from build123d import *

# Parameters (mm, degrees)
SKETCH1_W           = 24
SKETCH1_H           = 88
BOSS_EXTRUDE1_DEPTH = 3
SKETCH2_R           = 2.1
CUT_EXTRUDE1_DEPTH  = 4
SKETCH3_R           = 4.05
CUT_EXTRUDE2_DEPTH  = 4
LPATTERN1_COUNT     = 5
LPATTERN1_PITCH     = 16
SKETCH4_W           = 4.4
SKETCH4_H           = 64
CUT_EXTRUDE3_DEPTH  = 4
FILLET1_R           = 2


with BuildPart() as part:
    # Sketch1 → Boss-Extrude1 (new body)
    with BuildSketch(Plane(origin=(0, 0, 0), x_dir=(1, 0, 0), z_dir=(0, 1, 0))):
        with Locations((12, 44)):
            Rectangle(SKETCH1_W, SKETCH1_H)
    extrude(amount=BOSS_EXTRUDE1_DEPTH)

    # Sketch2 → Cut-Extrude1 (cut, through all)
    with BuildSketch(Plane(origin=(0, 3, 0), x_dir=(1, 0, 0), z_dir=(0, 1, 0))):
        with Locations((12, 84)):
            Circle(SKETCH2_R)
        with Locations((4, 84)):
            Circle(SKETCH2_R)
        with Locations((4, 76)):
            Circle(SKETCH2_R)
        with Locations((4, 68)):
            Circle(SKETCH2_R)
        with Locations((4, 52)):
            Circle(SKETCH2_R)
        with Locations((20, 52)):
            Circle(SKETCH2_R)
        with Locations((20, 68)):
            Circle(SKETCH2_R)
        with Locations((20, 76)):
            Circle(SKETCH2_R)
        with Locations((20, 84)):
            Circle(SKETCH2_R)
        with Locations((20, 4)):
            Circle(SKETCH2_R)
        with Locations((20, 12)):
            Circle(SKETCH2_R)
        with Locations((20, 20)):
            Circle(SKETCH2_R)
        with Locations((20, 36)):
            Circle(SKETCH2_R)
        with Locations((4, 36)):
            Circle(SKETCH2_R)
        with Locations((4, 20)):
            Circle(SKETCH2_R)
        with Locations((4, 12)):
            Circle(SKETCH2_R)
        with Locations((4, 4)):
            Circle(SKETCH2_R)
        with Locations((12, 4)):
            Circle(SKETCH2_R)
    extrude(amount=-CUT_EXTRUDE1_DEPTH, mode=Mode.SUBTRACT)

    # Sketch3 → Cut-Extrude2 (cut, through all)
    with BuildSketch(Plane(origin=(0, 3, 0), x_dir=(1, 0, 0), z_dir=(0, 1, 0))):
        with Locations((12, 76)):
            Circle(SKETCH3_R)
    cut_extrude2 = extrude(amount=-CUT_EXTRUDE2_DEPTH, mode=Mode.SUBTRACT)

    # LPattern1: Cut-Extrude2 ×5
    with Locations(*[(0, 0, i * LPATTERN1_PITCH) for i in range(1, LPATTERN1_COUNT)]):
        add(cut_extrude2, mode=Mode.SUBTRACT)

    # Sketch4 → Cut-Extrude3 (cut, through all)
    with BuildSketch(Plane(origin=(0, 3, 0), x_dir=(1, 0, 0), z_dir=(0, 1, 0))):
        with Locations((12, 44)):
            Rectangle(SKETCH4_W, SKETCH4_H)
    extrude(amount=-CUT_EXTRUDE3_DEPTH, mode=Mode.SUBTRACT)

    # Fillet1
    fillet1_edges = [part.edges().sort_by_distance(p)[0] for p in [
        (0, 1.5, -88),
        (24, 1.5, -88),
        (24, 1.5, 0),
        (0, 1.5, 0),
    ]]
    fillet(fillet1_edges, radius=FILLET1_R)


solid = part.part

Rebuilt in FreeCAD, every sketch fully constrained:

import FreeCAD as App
import Part
import Sketcher
from FreeCAD import Vector
Q = App.Units.Quantity


def edges_at(feature, points):
    """Names of the edges that pass closest to the given points."""
    edges = feature.Shape.Edges
    near = lambda p: min(range(len(edges)), key=lambda i: edges[i].distToShape(Part.Vertex(*p))[0])
    return sorted({f"Edge{near(p) + 1}" for p in points})

doc = App.newDocument("Part")
body = doc.addObject("PartDesign::Body", "Body")

sketch1 = body.newObject("Sketcher::SketchObject", "Sketch")
sketch1.AttachmentSupport = (doc.getObject("XZ_Plane"), [""])
sketch1.MapMode = "FlatFace"
sketch1.addGeometry(Part.LineSegment(Vector(0, -88, 0), Vector(0, 0, 0)), False)
sketch1.addGeometry(Part.LineSegment(Vector(0, 0, 0), Vector(24, 0, 0)), False)
sketch1.addGeometry(Part.LineSegment(Vector(24, 0, 0), Vector(24, -88, 0)), False)
sketch1.addGeometry(Part.LineSegment(Vector(24, -88, 0), Vector(0, -88, 0)), False)
sketch1.addConstraint(Sketcher.Constraint("Coincident", 0, 2, 1, 1))
sketch1.addConstraint(Sketcher.Constraint("Coincident", 1, 2, 2, 1))
sketch1.addConstraint(Sketcher.Constraint("Coincident", 2, 2, 3, 1))
sketch1.addConstraint(Sketcher.Constraint("Coincident", 3, 2, 0, 1))
sketch1.addConstraint(Sketcher.Constraint("Vertical", 0))
sketch1.addConstraint(Sketcher.Constraint("Horizontal", 1))
sketch1.addConstraint(Sketcher.Constraint("Vertical", 2))
sketch1.addConstraint(Sketcher.Constraint("Horizontal", 3))
sketch1.addConstraint(Sketcher.Constraint("Coincident", 0, 2, -1, 1))
sketch1.addConstraint(Sketcher.Constraint("DistanceX", 1, 1, 1, 2, Q("24 mm")))
sketch1.addConstraint(Sketcher.Constraint("DistanceY", 0, 1, 0, 2, Q("88 mm")))
pad1 = body.newObject("PartDesign::Pad", "Pad")
pad1.Profile = sketch1
pad1.Length = 3
pad1.Reversed = True

sketch2 = body.newObject("Sketcher::SketchObject", "Sketch001")
sketch2.AttachmentSupport = (doc.getObject("XZ_Plane"), [""])
sketch2.MapMode = "FlatFace"
sketch2.AttachmentOffset = App.Placement(Vector(0, 0, -3), App.Rotation())
sketch2.addGeometry(Part.Circle(Vector(12, -84, 0), Vector(0, 0, 1), 2.1), False)
sketch2.addGeometry(Part.Circle(Vector(4, -84, 0), Vector(0, 0, 1), 2.1), False)
sketch2.addGeometry(Part.Circle(Vector(4, -76, 0), Vector(0, 0, 1), 2.1), False)
sketch2.addGeometry(Part.Circle(Vector(4, -68, 0), Vector(0, 0, 1), 2.1), False)
sketch2.addGeometry(Part.Circle(Vector(4, -52, 0), Vector(0, 0, 1), 2.1), False)
sketch2.addGeometry(Part.Circle(Vector(20, -52, 0), Vector(0, 0, 1), 2.1), False)
sketch2.addGeometry(Part.Circle(Vector(20, -68, 0), Vector(0, 0, 1), 2.1), False)
sketch2.addGeometry(Part.Circle(Vector(20, -76, 0), Vector(0, 0, 1), 2.1), False)
sketch2.addGeometry(Part.Circle(Vector(20, -84, 0), Vector(0, 0, 1), 2.1), False)
sketch2.addGeometry(Part.Circle(Vector(20, -4, 0), Vector(0, 0, 1), 2.1), False)
sketch2.addGeometry(Part.Circle(Vector(20, -12, 0), Vector(0, 0, 1), 2.1), False)
sketch2.addGeometry(Part.Circle(Vector(20, -20, 0), Vector(0, 0, 1), 2.1), False)
sketch2.addGeometry(Part.Circle(Vector(20, -36, 0), Vector(0, 0, 1), 2.1), False)
sketch2.addGeometry(Part.Circle(Vector(4, -36, 0), Vector(0, 0, 1), 2.1), False)
sketch2.addGeometry(Part.Circle(Vector(4, -20, 0), Vector(0, 0, 1), 2.1), False)
sketch2.addGeometry(Part.Circle(Vector(4, -12, 0), Vector(0, 0, 1), 2.1), False)
sketch2.addGeometry(Part.Circle(Vector(4, -4, 0), Vector(0, 0, 1), 2.1), False)
sketch2.addGeometry(Part.Circle(Vector(12, -4, 0), Vector(0, 0, 1), 2.1), False)
sketch2.addConstraint(Sketcher.Constraint("Equal", 0, 1))
sketch2.addConstraint(Sketcher.Constraint("Equal", 1, 2))
sketch2.addConstraint(Sketcher.Constraint("Equal", 2, 3))
sketch2.addConstraint(Sketcher.Constraint("Equal", 3, 4))
sketch2.addConstraint(Sketcher.Constraint("Equal", 4, 5))
sketch2.addConstraint(Sketcher.Constraint("Equal", 5, 6))
sketch2.addConstraint(Sketcher.Constraint("Equal", 6, 7))
sketch2.addConstraint(Sketcher.Constraint("Equal", 7, 8))
sketch2.addConstraint(Sketcher.Constraint("Equal", 8, 9))
sketch2.addConstraint(Sketcher.Constraint("Equal", 9, 10))
sketch2.addConstraint(Sketcher.Constraint("Equal", 10, 11))
sketch2.addConstraint(Sketcher.Constraint("Equal", 11, 12))
sketch2.addConstraint(Sketcher.Constraint("Equal", 12, 13))
sketch2.addConstraint(Sketcher.Constraint("Equal", 13, 14))
sketch2.addConstraint(Sketcher.Constraint("Equal", 14, 15))
sketch2.addConstraint(Sketcher.Constraint("Equal", 15, 16))
sketch2.addConstraint(Sketcher.Constraint("Equal", 16, 17))
sketch2.addConstraint(Sketcher.Constraint("Horizontal", 0, 3, 1, 3))
sketch2.addConstraint(Sketcher.Constraint("Horizontal", 4, 3, 5, 3))
sketch2.addConstraint(Sketcher.Constraint("Horizontal", 3, 3, 6, 3))
sketch2.addConstraint(Sketcher.Constraint("Horizontal", 2, 3, 7, 3))
sketch2.addConstraint(Sketcher.Constraint("Horizontal", 1, 3, 8, 3))
sketch2.addConstraint(Sketcher.Constraint("Horizontal", 12, 3, 13, 3))
sketch2.addConstraint(Sketcher.Constraint("Horizontal", 11, 3, 14, 3))
sketch2.addConstraint(Sketcher.Constraint("Horizontal", 10, 3, 15, 3))
sketch2.addConstraint(Sketcher.Constraint("Horizontal", 9, 3, 16, 3))
sketch2.addConstraint(Sketcher.Constraint("Horizontal", 16, 3, 17, 3))
sketch2.addConstraint(Sketcher.Constraint("Vertical", 1, 3, 2, 3))
sketch2.addConstraint(Sketcher.Constraint("Vertical", 2, 3, 3, 3))
sketch2.addConstraint(Sketcher.Constraint("Vertical", 3, 3, 4, 3))
sketch2.addConstraint(Sketcher.Constraint("Vertical", 5, 3, 6, 3))
sketch2.addConstraint(Sketcher.Constraint("Vertical", 6, 3, 7, 3))
sketch2.addConstraint(Sketcher.Constraint("Vertical", 7, 3, 8, 3))
sketch2.addConstraint(Sketcher.Constraint("Vertical", 8, 3, 9, 3))
sketch2.addConstraint(Sketcher.Constraint("Vertical", 9, 3, 10, 3))
sketch2.addConstraint(Sketcher.Constraint("Vertical", 10, 3, 11, 3))
sketch2.addConstraint(Sketcher.Constraint("Vertical", 11, 3, 12, 3))
sketch2.addConstraint(Sketcher.Constraint("Vertical", 4, 3, 13, 3))
sketch2.addConstraint(Sketcher.Constraint("Vertical", 13, 3, 14, 3))
sketch2.addConstraint(Sketcher.Constraint("Vertical", 14, 3, 15, 3))
sketch2.addConstraint(Sketcher.Constraint("Vertical", 15, 3, 16, 3))
sketch2.addConstraint(Sketcher.Constraint("Vertical", 0, 3, 17, 3))
sketch2.addConstraint(Sketcher.Constraint("Diameter", 0, Q("4.2 mm")))
sketch2.addConstraint(Sketcher.Constraint("DistanceX", -1, 1, 0, 3, Q("12 mm")))
sketch2.addConstraint(Sketcher.Constraint("DistanceY", 0, 3, -1, 1, Q("84 mm")))
sketch2.addConstraint(Sketcher.Constraint("DistanceX", -1, 1, 1, 3, Q("4 mm")))
sketch2.addConstraint(Sketcher.Constraint("DistanceY", 2, 3, -1, 1, Q("76 mm")))
sketch2.addConstraint(Sketcher.Constraint("DistanceY", 3, 3, -1, 1, Q("68 mm")))
sketch2.addConstraint(Sketcher.Constraint("DistanceY", 4, 3, -1, 1, Q("52 mm")))
sketch2.addConstraint(Sketcher.Constraint("DistanceX", -1, 1, 5, 3, Q("20 mm")))
sketch2.addConstraint(Sketcher.Constraint("DistanceY", 9, 3, -1, 1, Q("4 mm")))
sketch2.addConstraint(Sketcher.Constraint("DistanceY", 10, 3, -1, 1, Q("12 mm")))
sketch2.addConstraint(Sketcher.Constraint("DistanceY", 11, 3, -1, 1, Q("20 mm")))
sketch2.addConstraint(Sketcher.Constraint("DistanceY", 12, 3, -1, 1, Q("36 mm")))
pocket1 = body.newObject("PartDesign::Pocket", "Pocket")
pocket1.Profile = sketch2
pocket1.Type = "ThroughAll"
pocket1.Reversed = True

sketch3 = body.newObject("Sketcher::SketchObject", "Sketch002")
sketch3.AttachmentSupport = (doc.getObject("XZ_Plane"), [""])
sketch3.MapMode = "FlatFace"
sketch3.AttachmentOffset = App.Placement(Vector(0, 0, -3), App.Rotation())
sketch3.addGeometry(Part.Circle(Vector(12, -76, 0), Vector(0, 0, 1), 4), False)
sketch3.addConstraint(Sketcher.Constraint("Diameter", 0, Q("8.1 mm")))
sketch3.addConstraint(Sketcher.Constraint("DistanceX", -1, 1, 0, 3, Q("12 mm")))
sketch3.addConstraint(Sketcher.Constraint("DistanceY", 0, 3, -1, 1, Q("76 mm")))
pocket2 = body.newObject("PartDesign::Pocket", "Pocket001")
pocket2.Profile = sketch3
pocket2.Type = "ThroughAll"
pocket2.Reversed = True
doc.recompute()

linearpattern = body.newObject("PartDesign::LinearPattern", "LinearPattern")
linearpattern.Originals = [pocket2]
linearpattern.Direction = (doc.getObject("Z_Axis"), [""])
linearpattern.Mode = "offset"
linearpattern.Offset = 16
linearpattern.Occurrences = 5
body.Tip = linearpattern

sketch4 = body.newObject("Sketcher::SketchObject", "Sketch003")
sketch4.AttachmentSupport = (doc.getObject("XZ_Plane"), [""])
sketch4.MapMode = "FlatFace"
sketch4.AttachmentOffset = App.Placement(Vector(0, 0, -3), App.Rotation())
sketch4.addGeometry(Part.LineSegment(Vector(9.8, -76, 0), Vector(9.8, -12, 0)), False)
sketch4.addGeometry(Part.LineSegment(Vector(9.8, -12, 0), Vector(14.2, -12, 0)), False)
sketch4.addGeometry(Part.LineSegment(Vector(14.2, -12, 0), Vector(14.2, -76, 0)), False)
sketch4.addGeometry(Part.LineSegment(Vector(14.2, -76, 0), Vector(9.8, -76, 0)), False)
sketch4.addConstraint(Sketcher.Constraint("Coincident", 0, 2, 1, 1))
sketch4.addConstraint(Sketcher.Constraint("Coincident", 1, 2, 2, 1))
sketch4.addConstraint(Sketcher.Constraint("Coincident", 2, 2, 3, 1))
sketch4.addConstraint(Sketcher.Constraint("Coincident", 3, 2, 0, 1))
sketch4.addConstraint(Sketcher.Constraint("Vertical", 0))
sketch4.addConstraint(Sketcher.Constraint("Horizontal", 1))
sketch4.addConstraint(Sketcher.Constraint("Vertical", 2))
sketch4.addConstraint(Sketcher.Constraint("Horizontal", 3))
sketch4.addConstraint(Sketcher.Constraint("DistanceY", 0, 1, 0, 2, Q("64 mm")))
sketch4.addConstraint(Sketcher.Constraint("DistanceX", 1, 1, 1, 2, Q("4.4 mm")))
sketch4.addConstraint(Sketcher.Constraint("DistanceY", 0, 2, -1, 1, Q("12 mm")))
sketch4.addConstraint(Sketcher.Constraint("DistanceX", -1, 1, 0, 2, Q("9.8 mm")))
pocket3 = body.newObject("PartDesign::Pocket", "Pocket002")
pocket3.Profile = sketch4
pocket3.Type = "ThroughAll"
pocket3.Reversed = True
doc.recompute()

fillet = body.newObject("PartDesign::Fillet", "Fillet")
fillet.Base = (pocket3, edges_at(pocket3, [
    (0, 1.5, -88),
    (24, 1.5, -88),
    (24, 1.5, 0),
    (0, 1.5, 0),
]))
fillet.Radius = 2

doc.recompute()
